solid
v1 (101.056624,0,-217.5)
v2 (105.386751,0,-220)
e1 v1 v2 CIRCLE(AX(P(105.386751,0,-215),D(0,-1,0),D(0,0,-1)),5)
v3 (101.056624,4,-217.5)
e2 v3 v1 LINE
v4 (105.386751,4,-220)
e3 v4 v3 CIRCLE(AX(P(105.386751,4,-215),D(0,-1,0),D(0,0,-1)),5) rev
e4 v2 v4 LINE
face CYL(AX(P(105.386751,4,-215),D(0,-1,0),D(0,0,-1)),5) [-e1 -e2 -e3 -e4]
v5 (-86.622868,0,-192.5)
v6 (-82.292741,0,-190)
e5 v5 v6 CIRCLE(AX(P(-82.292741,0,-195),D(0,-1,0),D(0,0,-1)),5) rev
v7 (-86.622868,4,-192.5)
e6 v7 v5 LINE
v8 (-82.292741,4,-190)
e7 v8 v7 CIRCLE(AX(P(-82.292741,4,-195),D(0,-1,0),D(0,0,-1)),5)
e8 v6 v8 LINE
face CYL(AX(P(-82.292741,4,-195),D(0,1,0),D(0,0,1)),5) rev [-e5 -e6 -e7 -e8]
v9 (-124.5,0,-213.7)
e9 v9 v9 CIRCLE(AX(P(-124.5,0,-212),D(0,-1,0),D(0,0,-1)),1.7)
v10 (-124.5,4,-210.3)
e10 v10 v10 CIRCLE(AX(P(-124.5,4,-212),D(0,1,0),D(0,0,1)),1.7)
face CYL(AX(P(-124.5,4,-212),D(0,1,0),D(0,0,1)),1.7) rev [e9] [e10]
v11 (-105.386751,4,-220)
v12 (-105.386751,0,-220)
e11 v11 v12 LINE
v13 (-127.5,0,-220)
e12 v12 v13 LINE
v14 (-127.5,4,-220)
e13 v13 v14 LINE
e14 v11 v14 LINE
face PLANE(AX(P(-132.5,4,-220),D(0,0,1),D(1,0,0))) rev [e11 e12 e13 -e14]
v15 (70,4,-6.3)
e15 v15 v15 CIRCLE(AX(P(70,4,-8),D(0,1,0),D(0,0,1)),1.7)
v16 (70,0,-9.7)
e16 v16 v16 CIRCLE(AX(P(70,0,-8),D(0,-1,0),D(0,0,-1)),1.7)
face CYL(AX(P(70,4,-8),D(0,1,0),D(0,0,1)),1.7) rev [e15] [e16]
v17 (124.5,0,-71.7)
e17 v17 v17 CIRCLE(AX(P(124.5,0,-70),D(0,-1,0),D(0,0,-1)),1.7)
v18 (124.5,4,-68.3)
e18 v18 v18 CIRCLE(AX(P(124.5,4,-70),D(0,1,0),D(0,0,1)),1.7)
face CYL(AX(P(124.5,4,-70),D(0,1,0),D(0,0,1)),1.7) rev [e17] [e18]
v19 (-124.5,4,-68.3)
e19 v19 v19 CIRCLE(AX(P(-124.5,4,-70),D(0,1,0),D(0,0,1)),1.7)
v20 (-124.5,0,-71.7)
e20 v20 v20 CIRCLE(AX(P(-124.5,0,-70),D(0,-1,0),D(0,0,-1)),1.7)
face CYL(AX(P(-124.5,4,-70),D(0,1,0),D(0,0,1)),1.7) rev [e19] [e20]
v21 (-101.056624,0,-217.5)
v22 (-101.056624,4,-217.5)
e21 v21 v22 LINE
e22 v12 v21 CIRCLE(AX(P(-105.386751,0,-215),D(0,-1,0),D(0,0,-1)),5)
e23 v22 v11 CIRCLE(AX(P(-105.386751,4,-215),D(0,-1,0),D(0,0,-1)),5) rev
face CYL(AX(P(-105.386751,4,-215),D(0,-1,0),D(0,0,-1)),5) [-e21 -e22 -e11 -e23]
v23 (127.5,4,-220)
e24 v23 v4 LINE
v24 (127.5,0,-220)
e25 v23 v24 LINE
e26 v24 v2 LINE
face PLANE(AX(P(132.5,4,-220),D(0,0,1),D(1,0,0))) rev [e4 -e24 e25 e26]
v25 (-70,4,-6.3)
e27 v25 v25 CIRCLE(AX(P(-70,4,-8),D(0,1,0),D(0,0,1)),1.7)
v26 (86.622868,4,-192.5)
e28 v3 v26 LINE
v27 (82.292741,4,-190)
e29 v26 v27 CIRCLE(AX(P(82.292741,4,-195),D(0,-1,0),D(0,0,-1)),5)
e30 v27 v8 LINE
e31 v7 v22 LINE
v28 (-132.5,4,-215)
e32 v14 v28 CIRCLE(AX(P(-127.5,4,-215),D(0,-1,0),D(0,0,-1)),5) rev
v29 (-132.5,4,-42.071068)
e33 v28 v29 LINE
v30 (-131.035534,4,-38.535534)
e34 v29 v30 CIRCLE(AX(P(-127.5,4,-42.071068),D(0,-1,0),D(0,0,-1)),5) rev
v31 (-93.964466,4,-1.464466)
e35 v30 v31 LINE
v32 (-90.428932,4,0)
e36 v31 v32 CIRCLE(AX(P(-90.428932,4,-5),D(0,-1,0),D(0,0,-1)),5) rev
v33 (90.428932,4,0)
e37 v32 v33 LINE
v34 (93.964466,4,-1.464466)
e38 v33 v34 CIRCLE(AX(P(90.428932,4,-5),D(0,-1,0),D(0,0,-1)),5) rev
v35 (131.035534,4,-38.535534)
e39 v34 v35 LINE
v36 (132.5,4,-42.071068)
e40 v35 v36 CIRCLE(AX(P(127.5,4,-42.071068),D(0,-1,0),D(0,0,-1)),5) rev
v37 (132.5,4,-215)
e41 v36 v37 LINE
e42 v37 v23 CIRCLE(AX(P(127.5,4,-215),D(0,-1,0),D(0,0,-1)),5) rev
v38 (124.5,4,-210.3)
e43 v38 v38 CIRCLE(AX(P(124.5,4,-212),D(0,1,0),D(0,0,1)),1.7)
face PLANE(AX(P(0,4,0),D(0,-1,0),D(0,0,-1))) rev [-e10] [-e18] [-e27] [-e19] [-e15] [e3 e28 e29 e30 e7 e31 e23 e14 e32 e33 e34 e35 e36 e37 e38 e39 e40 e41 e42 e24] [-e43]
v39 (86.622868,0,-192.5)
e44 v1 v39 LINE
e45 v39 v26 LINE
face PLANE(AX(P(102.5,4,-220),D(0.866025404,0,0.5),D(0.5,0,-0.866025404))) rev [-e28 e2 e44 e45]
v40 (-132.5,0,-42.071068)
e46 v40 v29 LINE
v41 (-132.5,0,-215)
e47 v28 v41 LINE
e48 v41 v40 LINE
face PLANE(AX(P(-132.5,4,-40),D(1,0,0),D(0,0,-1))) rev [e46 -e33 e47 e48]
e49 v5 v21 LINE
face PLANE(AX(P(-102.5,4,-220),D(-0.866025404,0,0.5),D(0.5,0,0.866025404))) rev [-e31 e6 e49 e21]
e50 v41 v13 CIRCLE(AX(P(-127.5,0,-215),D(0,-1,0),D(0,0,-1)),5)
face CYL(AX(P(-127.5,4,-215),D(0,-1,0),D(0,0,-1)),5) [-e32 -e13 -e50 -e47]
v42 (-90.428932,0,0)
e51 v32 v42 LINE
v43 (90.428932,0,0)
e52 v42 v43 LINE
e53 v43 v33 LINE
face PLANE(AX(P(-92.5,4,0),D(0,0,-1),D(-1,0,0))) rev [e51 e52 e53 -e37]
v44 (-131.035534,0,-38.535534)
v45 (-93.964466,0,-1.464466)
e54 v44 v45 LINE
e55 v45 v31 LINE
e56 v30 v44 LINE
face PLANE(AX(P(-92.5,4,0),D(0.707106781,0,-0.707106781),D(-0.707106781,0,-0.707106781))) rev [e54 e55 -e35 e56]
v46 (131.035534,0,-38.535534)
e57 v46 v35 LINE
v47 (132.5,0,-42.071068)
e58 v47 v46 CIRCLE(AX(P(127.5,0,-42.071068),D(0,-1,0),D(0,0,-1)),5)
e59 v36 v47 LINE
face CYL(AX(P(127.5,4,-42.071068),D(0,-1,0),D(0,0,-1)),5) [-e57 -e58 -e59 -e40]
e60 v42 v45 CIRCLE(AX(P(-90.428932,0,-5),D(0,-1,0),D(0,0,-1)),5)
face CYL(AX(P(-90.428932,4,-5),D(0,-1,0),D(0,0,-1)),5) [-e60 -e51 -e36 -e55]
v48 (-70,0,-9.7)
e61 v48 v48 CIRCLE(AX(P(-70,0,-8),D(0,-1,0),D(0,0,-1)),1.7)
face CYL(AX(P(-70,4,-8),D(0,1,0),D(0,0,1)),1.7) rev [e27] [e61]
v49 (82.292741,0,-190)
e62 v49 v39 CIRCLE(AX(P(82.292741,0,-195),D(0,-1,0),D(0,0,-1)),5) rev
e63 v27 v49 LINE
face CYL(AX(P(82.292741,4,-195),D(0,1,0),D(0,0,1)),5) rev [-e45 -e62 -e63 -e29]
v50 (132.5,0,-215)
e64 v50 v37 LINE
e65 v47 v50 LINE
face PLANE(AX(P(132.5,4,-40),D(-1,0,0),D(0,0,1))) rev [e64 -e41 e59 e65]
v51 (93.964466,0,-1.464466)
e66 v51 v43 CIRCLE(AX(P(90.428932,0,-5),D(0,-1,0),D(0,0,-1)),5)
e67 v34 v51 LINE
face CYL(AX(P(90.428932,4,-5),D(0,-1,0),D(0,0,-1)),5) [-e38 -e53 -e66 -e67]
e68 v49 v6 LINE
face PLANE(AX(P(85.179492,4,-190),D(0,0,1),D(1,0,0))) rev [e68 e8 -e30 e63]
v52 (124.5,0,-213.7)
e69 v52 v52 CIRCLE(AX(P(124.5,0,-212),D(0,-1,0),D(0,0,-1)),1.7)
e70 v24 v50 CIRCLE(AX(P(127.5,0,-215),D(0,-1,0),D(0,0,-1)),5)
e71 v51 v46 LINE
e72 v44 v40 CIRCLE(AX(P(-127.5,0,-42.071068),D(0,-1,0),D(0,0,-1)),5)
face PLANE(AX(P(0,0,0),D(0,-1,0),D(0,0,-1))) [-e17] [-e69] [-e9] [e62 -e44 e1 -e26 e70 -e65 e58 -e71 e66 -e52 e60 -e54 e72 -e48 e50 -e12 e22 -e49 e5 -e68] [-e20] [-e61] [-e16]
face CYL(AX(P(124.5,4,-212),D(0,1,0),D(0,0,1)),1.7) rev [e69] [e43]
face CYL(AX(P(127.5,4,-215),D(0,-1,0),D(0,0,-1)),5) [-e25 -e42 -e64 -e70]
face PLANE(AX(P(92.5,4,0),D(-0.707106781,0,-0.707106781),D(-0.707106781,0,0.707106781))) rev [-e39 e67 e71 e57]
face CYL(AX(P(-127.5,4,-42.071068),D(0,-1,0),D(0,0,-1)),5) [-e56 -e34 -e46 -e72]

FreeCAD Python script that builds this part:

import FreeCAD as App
import Part
import Sketcher

V = App.Vector
Q = App.Units.Quantity


def edges_at(feature, points):
    """Names of the edges that pass closest to the given points."""
    edges = feature.Shape.Edges
    near = lambda p: min(range(len(edges)), key=lambda i: edges[i].distToShape(Part.Vertex(*p))[0])
    return sorted({f"Edge{near(p) + 1}" for p in points})


def add_polygon(sketch, points):
    """Adds a closed chain of lines whose ends are joined by coincident constraints."""
    first, n = sketch.GeometryCount, len(points)
    for a, b in zip(points, points[1:] + points[:1]):
        sketch.addGeometry(Part.LineSegment(App.Vector(*a, 0), App.Vector(*b, 0)), False)
    for i in range(n):
        sketch.addConstraint(Sketcher.Constraint("Coincident", first + i, 2, first + (i + 1) % n, 1))

doc = App.newDocument("Part")
body = doc.addObject("PartDesign::Body", "Body")

sketch1 = doc.addObject("Sketcher::SketchObject", "Sketch")
body.addObject(sketch1)
sketch1.AttachmentSupport = (doc.XZ_Plane, [""])
sketch1.MapMode = "FlatFace"
add_polygon(sketch1, [(-92.5, 0), (92.5, 0), (132.5, -40), (132.5, -220), (102.5, -220), (85.179492, -190), (-85.179492, -190), (-102.5, -220), (-132.5, -220), (-132.5, -40)])
sketch1.addConstraint([
    Sketcher.Constraint("Horizontal", 0),
    Sketcher.Constraint("Vertical", 2),
    Sketcher.Constraint("Horizontal", 3),
    Sketcher.Constraint("Horizontal", 5),
    Sketcher.Constraint("Horizontal", 7),
    Sketcher.Constraint("Vertical", 8),
    Sketcher.Constraint("Symmetric", 0, 2, 9, 2, -1, 1),
    Sketcher.Constraint("Symmetric", 3, 2, 6, 2, -2),
    Sketcher.Constraint("Symmetric", 1, 2, 8, 2, -2),
    Sketcher.Constraint("Perpendicular", 1, 9),
    Sketcher.Constraint("Equal", 4, 6),
    Sketcher.Constraint("DistanceX", 0, 1, 0, 2, 185.0),
    Sketcher.Constraint("DistanceX", 3, 2, 3, 1, 30.0),
    Sketcher.Constraint("DistanceY", 2, 2, 2, 1, 180.0),
    Sketcher.Constraint("Angle", 4, Q("120 deg")),
    Sketcher.Constraint("DistanceY", 1, 2, -1, 1, 40.0),
    Sketcher.Constraint("DistanceY", 4, 2, -1, 1, 190.0),
])
pad1 = doc.addObject("PartDesign::Pad", "Pad")
body.addObject(pad1)
pad1.Profile = sketch1
pad1.Length = 4
pad1.Reversed = True

sketch2 = doc.addObject("Sketcher::SketchObject", "Sketch001")
body.addObject(sketch2)
sketch2.AttachmentSupport = (doc.XZ_Plane, [""])
sketch2.MapMode = "FlatFace"
sketch2.AttachmentOffset = App.Placement(V(0, 0, -4), App.Rotation())
sketch2.addGeometry([
    Part.Circle(V(70, -8, 0), V(0, 0, 1), 1),
    Part.Circle(V(124.5, -70, 0), V(0, 0, 1), 1),
    Part.Circle(V(124.5, -212, 0), V(0, 0, 1), 1),
    Part.Circle(V(-70, -8, 0), V(0, 0, 1), 1),
    Part.Circle(V(-124.5, -70, 0), V(0, 0, 1), 1),
    Part.Circle(V(-124.5, -212, 0), V(0, 0, 1), 1),
], False)
sketch2.addConstraint([
    Sketcher.Constraint("Equal", 0, 1),
    Sketcher.Constraint("Equal", 1, 2),
    Sketcher.Constraint("Equal", 2, 3),
    Sketcher.Constraint("Equal", 3, 4),
    Sketcher.Constraint("Equal", 4, 5),
    Sketcher.Constraint("Symmetric", 0, 3, 3, 3, -2),
    Sketcher.Constraint("Symmetric", 1, 3, 4, 3, -2),
    Sketcher.Constraint("Symmetric", 2, 3, 5, 3, -2),
    Sketcher.Constraint("Vertical", 1, 3, 2, 3),
    Sketcher.Constraint("Diameter", 0, 2.0),
    Sketcher.Constraint("DistanceX", -1, 1, 0, 3, 70.0),
    Sketcher.Constraint("DistanceY", 0, 3, -1, 1, 8.0),
    Sketcher.Constraint("DistanceY", 1, 3, -1, 1, 70.0),
    Sketcher.Constraint("DistanceY", 2, 3, -1, 1, 212.0),
    Sketcher.Constraint("DistanceX", 4, 3, 1, 3, 249.0),
])
pocket1 = doc.addObject("PartDesign::Pocket", "Pocket")
body.addObject(pocket1)
pocket1.Profile = sketch2
pocket1.Type = "ThroughAll"
pocket1.Reversed = True

sketch3 = doc.addObject("Sketcher::SketchObject", "Sketch002")
body.addObject(sketch3)
sketch3.AttachmentSupport = (doc.XZ_Plane, [""])
sketch3.MapMode = "FlatFace"
sketch3.AttachmentOffset = App.Placement(V(0, 0, -4), App.Rotation())
sketch3.addGeometry([
    Part.Circle(V(-70, -8, 0), V(0, 0, 1), 1.7),
    Part.Circle(V(70, -8, 0), V(0, 0, 1), 1.7),
    Part.Circle(V(124.5, -70, 0), V(0, 0, 1), 1.7),
    Part.Circle(V(124.5, -212, 0), V(0, 0, 1), 1.7),
    Part.Circle(V(-124.5, -212, 0), V(0, 0, 1), 1.7),
    Part.Circle(V(-124.5, -70, 0), V(0, 0, 1), 1.7),
], False)
sketch3.addConstraint([
    Sketcher.Constraint("Equal", 0, 1),
    Sketcher.Constraint("Equal", 1, 2),
    Sketcher.Constraint("Equal", 2, 3),
    Sketcher.Constraint("Equal", 3, 4),
    Sketcher.Constraint("Equal", 4, 5),
    Sketcher.Constraint("Symmetric", 0, 3, 1, 3, -2),
    Sketcher.Constraint("Symmetric", 3, 3, 4, 3, -2),
    Sketcher.Constraint("Symmetric", 2, 3, 5, 3, -2),
    Sketcher.Constraint("Vertical", 2, 3, 3, 3),
    Sketcher.Constraint("Diameter", 0, 3.4),
    Sketcher.Constraint("DistanceX", 0, 3, -1, 1, 70.0),
    Sketcher.Constraint("DistanceY", 0, 3, -1, 1, 8.0),
    Sketcher.Constraint("DistanceY", 2, 3, -1, 1, 70.0),
    Sketcher.Constraint("DistanceY", 3, 3, -1, 1, 212.0),
    Sketcher.Constraint("DistanceX", 4, 3, 3, 3, 249.0),
])
doc.recompute()
hole = doc.addObject("PartDesign::Hole", "Hole")
body.addObject(hole)
hole.Profile = sketch3
hole.ThreadType = "None"
hole.Diameter = 3.4
hole.DepthType = "Dimension"
hole.Depth = 10
hole.DrillPoint = "Angled"
hole.DrillPointAngle = 118
hole.Reversed = True
doc.recompute()

fillet = doc.addObject("PartDesign::Fillet", "Fillet")
body.addObject(fillet)
fillet.Base = (hole, edges_at(hole, [
    (132.5, 2, -220),
    (132.5, 2, -40),
    (92.5, 2, 0),
    (-92.5, 2, 0),
    (-132.5, 2, -40),
    (-132.5, 2, -220),
    (-102.5, 2, -220),
    (-85.179, 2, -190),
    (85.179, 2, -190),
    (102.5, 2, -220),
]))
fillet.Radius = 5

doc.recompute()
